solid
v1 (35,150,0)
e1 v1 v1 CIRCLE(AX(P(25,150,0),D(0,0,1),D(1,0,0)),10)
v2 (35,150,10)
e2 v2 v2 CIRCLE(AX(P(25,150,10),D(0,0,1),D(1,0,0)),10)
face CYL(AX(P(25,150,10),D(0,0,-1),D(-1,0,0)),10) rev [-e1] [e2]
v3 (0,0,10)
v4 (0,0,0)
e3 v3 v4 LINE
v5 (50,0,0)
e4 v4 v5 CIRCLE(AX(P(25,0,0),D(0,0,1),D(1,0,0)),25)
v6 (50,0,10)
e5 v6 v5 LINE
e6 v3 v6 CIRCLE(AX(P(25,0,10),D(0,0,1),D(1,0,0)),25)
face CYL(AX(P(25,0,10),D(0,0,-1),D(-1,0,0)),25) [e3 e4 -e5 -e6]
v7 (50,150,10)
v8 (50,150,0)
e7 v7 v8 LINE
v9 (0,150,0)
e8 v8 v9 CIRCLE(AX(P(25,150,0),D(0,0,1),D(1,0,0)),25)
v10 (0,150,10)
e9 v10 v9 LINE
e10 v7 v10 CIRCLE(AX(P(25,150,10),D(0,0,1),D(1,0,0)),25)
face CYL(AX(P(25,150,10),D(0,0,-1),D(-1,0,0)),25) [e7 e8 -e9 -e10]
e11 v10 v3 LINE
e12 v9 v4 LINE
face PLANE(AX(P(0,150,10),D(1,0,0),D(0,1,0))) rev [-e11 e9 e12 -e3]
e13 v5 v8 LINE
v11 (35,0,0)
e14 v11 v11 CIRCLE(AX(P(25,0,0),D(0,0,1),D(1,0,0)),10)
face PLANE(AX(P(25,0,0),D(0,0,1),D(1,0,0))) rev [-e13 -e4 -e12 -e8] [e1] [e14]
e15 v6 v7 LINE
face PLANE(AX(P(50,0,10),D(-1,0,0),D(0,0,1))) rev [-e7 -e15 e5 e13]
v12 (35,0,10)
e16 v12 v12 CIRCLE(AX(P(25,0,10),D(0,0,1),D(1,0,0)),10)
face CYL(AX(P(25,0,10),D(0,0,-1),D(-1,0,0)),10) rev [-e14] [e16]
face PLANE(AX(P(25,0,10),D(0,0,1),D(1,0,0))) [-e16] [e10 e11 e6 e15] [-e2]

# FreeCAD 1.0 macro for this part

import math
import FreeCAD as App
import Part
import Sketcher
from FreeCAD import Vector

doc = App.newDocument("Part")
body = doc.addObject("PartDesign::Body", "Body")

sketch1 = body.newObject("Sketcher::SketchObject", "Sketch")
sketch1.AttachmentSupport = (doc.getObject("XY_Plane"), [""])
sketch1.MapMode = "FlatFace"
sketch1.addGeometry([
    Part.LineSegment(Vector(50, 0, 0), Vector(50, 150, 0)),
    Part.ArcOfCircle(Part.Circle(Vector(25, 150, 0), Vector(0, 0, 1), 25), math.radians(0), math.radians(180)),
    Part.LineSegment(Vector(0, 150, 0), Vector(0, 0, 0)),
    Part.ArcOfCircle(Part.Circle(Vector(25, 0, 0), Vector(0, 0, 1), 25), math.radians(180), math.radians(360)),
    Part.Circle(Vector(25, 0, 0), Vector(0, 0, 1), 10),
    Part.Circle(Vector(25, 150, 0), Vector(0, 0, 1), 10),
], False)
sketch1.addConstraint([
    Sketcher.Constraint("Tangent", 0, 2, 1, 1),
    Sketcher.Constraint("Tangent", 1, 2, 2, 1),
    Sketcher.Constraint("Tangent", 2, 2, 3, 1),
    Sketcher.Constraint("Tangent", 3, 2, 0, 1),
    Sketcher.Constraint("Vertical", 0),
    Sketcher.Constraint("Vertical", 2),
    Sketcher.Constraint("Coincident", 2, 2, -1, 1),
    Sketcher.Constraint("Coincident", 4, 3, 3, 3),
    Sketcher.Constraint("Coincident", 5, 3, 1, 3),
    Sketcher.Constraint("Equal", 4, 5),
    Sketcher.Constraint("Diameter", 4, 20.0),
    Sketcher.Constraint("Radius", 1, 25.0),
    Sketcher.Constraint("DistanceY", 0, 1, 0, 2, 150.0),
])
pad1 = body.newObject("PartDesign::Pad", "Pad")
pad1.Profile = sketch1
pad1.Length = 10

doc.recompute()
